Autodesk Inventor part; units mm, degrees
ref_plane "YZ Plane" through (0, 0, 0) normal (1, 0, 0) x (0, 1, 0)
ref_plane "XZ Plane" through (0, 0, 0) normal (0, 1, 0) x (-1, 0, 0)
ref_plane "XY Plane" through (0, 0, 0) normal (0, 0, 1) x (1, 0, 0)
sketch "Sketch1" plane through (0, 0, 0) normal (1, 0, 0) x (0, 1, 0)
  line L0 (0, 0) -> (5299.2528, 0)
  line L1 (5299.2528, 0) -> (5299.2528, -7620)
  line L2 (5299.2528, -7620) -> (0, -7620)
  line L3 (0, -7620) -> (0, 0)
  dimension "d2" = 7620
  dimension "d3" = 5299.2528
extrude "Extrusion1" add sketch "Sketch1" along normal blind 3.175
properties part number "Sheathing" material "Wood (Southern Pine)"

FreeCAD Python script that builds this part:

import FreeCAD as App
import Part
import Sketcher

V = App.Vector
Q = App.Units.Quantity

doc = App.newDocument("Part")
body = doc.addObject("PartDesign::Body", "Body")

# Sketch on YZ plane
sketch1 = body.newObject("Sketcher::SketchObject", "Sketch")
sketch1.AttachmentSupport = (doc.getObject("YZ_Plane"), [""])
sketch1.MapMode = "FlatFace"
sketch1.addGeometry([
    Part.LineSegment(V(5299, 0, 0), V(0, 0, 0)),
    Part.LineSegment(V(0, 0, 0), V(0, -7620, 0)),
    Part.LineSegment(V(0, -7620, 0), V(5299, -7620, 0)),
    Part.LineSegment(V(5299, -7620, 0), V(5299, 0, 0)),
], False)
sketch1.addConstraint([
    Sketcher.Constraint("Coincident", 0, 2, 1, 1),
    Sketcher.Constraint("Coincident", 1, 2, 2, 1),
    Sketcher.Constraint("Coincident", 2, 2, 3, 1),
    Sketcher.Constraint("Coincident", 3, 2, 0, 1),
    Sketcher.Constraint("Horizontal", 0),
    Sketcher.Constraint("Vertical", 1),
    Sketcher.Constraint("Horizontal", 2),
    Sketcher.Constraint("Vertical", 3),
    Sketcher.Constraint("Coincident", 0, 2, -1, 1),
    Sketcher.Constraint("DistanceY", 1, 2, 1, 1, Q("300 in")),
    Sketcher.Constraint("DistanceX", 0, 2, 0, 1, Q("208.632 in")),
])
pad1 = body.newObject("PartDesign::Pad", "Pad")
pad1.Profile = sketch1
pad1.Length = Q("0.125 in")

doc.recompute()
